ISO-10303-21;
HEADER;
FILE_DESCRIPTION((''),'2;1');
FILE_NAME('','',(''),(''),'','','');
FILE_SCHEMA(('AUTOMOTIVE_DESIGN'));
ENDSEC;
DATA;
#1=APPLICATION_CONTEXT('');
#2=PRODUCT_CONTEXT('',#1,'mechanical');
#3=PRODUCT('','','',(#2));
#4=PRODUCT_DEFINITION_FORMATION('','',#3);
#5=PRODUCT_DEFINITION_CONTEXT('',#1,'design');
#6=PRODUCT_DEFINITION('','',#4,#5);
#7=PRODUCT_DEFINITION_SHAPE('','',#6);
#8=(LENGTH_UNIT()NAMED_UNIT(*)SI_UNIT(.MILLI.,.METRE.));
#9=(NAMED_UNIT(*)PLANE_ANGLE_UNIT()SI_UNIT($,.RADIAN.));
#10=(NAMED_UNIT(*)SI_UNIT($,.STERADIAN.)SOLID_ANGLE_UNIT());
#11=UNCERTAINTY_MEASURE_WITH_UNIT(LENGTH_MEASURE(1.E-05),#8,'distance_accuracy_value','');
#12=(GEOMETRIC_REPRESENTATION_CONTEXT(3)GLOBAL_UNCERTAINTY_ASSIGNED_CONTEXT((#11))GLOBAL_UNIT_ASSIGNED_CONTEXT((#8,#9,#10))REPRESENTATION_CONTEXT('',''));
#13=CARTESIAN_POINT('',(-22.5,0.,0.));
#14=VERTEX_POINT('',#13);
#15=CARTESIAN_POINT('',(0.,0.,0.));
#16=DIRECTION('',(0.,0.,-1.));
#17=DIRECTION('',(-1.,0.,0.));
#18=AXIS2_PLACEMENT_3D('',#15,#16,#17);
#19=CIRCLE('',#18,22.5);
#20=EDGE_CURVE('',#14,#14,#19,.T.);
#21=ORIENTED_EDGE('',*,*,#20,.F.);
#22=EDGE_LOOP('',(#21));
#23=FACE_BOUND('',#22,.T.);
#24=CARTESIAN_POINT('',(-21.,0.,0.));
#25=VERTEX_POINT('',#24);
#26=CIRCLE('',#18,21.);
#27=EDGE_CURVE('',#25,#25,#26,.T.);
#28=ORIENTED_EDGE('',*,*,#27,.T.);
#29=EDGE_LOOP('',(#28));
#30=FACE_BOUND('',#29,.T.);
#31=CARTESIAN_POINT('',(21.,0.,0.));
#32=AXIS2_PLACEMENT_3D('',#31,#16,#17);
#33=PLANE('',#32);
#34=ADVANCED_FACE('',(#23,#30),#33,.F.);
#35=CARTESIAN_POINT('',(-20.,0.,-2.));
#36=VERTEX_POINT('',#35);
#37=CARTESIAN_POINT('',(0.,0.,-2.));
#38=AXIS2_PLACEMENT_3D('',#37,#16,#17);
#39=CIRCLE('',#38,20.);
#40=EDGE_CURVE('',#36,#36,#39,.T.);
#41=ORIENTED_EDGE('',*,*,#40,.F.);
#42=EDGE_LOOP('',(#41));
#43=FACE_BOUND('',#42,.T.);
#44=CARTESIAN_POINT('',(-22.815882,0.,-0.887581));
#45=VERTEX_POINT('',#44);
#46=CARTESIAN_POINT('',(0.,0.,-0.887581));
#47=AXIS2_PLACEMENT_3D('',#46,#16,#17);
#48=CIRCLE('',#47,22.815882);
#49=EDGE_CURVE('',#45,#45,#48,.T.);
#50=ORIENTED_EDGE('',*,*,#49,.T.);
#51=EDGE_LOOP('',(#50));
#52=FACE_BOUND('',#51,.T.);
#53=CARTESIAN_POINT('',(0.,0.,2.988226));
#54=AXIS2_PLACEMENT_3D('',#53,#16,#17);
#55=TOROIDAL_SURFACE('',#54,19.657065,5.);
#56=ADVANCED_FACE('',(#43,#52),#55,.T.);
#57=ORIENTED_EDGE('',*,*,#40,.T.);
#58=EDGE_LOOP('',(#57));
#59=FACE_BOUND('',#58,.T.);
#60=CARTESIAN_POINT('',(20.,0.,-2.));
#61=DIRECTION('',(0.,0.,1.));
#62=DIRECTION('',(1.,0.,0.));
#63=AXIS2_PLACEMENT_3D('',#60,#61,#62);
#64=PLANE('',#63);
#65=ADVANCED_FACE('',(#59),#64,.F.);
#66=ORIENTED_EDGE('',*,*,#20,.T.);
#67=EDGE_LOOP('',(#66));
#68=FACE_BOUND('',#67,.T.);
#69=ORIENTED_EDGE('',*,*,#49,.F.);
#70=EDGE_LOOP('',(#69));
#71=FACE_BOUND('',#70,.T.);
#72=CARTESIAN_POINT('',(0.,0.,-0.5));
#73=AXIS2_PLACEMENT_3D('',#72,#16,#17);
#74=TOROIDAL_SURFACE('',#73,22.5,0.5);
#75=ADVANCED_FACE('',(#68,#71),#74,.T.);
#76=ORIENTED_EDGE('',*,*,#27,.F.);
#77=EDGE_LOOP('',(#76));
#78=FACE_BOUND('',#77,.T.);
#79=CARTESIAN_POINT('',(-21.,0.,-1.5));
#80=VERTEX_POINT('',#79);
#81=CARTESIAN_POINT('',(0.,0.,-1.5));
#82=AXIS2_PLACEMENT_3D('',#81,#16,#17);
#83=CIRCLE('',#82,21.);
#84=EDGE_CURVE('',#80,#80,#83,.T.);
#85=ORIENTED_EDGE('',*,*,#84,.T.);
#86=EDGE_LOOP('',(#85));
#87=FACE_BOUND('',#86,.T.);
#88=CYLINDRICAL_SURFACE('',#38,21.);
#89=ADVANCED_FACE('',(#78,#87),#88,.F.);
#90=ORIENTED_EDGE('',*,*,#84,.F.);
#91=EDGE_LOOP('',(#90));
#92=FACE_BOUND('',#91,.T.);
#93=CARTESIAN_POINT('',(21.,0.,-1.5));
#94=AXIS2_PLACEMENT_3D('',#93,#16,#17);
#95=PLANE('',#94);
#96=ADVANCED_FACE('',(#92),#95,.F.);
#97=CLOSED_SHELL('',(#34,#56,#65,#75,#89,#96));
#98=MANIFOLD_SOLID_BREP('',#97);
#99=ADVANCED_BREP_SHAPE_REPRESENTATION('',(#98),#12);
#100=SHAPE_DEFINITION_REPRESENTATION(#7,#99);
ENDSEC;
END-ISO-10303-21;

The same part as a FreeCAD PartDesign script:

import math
import FreeCAD as App
import Part
import Sketcher
from FreeCAD import Vector

doc = App.newDocument("Part")
body = doc.addObject("PartDesign::Body", "Body")

# Sketch on XZ plane
sketch1 = doc.addObject("Sketcher::SketchObject", "Sketch")
body.addObject(sketch1)
sketch1.AttachmentSupport = (doc.XZ_Plane, [""])
sketch1.MapMode = "FlatFace"
sketch1.addGeometry([
    Part.LineSegment(Vector(21, 0, 0), Vector(22.5, 0, 0)),  # 0
    Part.ArcOfCircle(Part.Circle(Vector(22.5, -0.5, 0), Vector(0, 0, 1), 0.5), math.radians(-51), math.radians(90)),  # 1
    Part.ArcOfCircle(Part.Circle(Vector(19.7, 3, 0), Vector(0, 0, 1), 5), math.radians(-86), math.radians(-51)),  # 2
    Part.LineSegment(Vector(20, -2, 0), Vector(0, -2, 0)),  # 3
    Part.LineSegment(Vector(0, -2, 0), Vector(0, -1.5, 0)),  # 4
    Part.LineSegment(Vector(0, -1.5, 0), Vector(21, -1.5, 0)),  # 5
    Part.LineSegment(Vector(21, -1.5, 0), Vector(21, 0, 0)),  # 6
], False)
sketch1.addConstraint([
    Sketcher.Constraint("Tangent", 0, 2, 1, 2),
    Sketcher.Constraint("Tangent", 1, 1, 2, 2),
    Sketcher.Constraint("Coincident", 2, 1, 3, 1),
    Sketcher.Constraint("Coincident", 3, 2, 4, 1),
    Sketcher.Constraint("Coincident", 4, 2, 5, 1),
    Sketcher.Constraint("Coincident", 5, 2, 6, 1),
    Sketcher.Constraint("Coincident", 6, 2, 0, 1),
    Sketcher.Constraint("Horizontal", 0),
    Sketcher.Constraint("Horizontal", 3),
    Sketcher.Constraint("Vertical", 4),
    Sketcher.Constraint("Horizontal", 5),
    Sketcher.Constraint("Vertical", 6),
    Sketcher.Constraint("PointOnObject", 0, 2, -1),
    Sketcher.Constraint("PointOnObject", 3, 2, -2),
    Sketcher.Constraint("Equal", 0, 6),
    Sketcher.Constraint("Radius", 2, 5.0),
    Sketcher.Constraint("Radius", 1, 0.5),
    Sketcher.Constraint("DistanceX", 3, 2, 3, 1, 20.0),
    Sketcher.Constraint("DistanceX", 5, 1, 5, 2, 21.0),
    Sketcher.Constraint("DistanceX", 0, 1, 0, 2, 1.5),
    Sketcher.Constraint("DistanceY", 4, 1, 4, 2, 0.5),
])
revolution = doc.addObject("PartDesign::Revolution", "Revolution")
body.addObject(revolution)
revolution.Profile = sketch1
revolution.ReferenceAxis = (sketch1, ["V_Axis"])
revolution.Angle = 360

doc.recompute()
